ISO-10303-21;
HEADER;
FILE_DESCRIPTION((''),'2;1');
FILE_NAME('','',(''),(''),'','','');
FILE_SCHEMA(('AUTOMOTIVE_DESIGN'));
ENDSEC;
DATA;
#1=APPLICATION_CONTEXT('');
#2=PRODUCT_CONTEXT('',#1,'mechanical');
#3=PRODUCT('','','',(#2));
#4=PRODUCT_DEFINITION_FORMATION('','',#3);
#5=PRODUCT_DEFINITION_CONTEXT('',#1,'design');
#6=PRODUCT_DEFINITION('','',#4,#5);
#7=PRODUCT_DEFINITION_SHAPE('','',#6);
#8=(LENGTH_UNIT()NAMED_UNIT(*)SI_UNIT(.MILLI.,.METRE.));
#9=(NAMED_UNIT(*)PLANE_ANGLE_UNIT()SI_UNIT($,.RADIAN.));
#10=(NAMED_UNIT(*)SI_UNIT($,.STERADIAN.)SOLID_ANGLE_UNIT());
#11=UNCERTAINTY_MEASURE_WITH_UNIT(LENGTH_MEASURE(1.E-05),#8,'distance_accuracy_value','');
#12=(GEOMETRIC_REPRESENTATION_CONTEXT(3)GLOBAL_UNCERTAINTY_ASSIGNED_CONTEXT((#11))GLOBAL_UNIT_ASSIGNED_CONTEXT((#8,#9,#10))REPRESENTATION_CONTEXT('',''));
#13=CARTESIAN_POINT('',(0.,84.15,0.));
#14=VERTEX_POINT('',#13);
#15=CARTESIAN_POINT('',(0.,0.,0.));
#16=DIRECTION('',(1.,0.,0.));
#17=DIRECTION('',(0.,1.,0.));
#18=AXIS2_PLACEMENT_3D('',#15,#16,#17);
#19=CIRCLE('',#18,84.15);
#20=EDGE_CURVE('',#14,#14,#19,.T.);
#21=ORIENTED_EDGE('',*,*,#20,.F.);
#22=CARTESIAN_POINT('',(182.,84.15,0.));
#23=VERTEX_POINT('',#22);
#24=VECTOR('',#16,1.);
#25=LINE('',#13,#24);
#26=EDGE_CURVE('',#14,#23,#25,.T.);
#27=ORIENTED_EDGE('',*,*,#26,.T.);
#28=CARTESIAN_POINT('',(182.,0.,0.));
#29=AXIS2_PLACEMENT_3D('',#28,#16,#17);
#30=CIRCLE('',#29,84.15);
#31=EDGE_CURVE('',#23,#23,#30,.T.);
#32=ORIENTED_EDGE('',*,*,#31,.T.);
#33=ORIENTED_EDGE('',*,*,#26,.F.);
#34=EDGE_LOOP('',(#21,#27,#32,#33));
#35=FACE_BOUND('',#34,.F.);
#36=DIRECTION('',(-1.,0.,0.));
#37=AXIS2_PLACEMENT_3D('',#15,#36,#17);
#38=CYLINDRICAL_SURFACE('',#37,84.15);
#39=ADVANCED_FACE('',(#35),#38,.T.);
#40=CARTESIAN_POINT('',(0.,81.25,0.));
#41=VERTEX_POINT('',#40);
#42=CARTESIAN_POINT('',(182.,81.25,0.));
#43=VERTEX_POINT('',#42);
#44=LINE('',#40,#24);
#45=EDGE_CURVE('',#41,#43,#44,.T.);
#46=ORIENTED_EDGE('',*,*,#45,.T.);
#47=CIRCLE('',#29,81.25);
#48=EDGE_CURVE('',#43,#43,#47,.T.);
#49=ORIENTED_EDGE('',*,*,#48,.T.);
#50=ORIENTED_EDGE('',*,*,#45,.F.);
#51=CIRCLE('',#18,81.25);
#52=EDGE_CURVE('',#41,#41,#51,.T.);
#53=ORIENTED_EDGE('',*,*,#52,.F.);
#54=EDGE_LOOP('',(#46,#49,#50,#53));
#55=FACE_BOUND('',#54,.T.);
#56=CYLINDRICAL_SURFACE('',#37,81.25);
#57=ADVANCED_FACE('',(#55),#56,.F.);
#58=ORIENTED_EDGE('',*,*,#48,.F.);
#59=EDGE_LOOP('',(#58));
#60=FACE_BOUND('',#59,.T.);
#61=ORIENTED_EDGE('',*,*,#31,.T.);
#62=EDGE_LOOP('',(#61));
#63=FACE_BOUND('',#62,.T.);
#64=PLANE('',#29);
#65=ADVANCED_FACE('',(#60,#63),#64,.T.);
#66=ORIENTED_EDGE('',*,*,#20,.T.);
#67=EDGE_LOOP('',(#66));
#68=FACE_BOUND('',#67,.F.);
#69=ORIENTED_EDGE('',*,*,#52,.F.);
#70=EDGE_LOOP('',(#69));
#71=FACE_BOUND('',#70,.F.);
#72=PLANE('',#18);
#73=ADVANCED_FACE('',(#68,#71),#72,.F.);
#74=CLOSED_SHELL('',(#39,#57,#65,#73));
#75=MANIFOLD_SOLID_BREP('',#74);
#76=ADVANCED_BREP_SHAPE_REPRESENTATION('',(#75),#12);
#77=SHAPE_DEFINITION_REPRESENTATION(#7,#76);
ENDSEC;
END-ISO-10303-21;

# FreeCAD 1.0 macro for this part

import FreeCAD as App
import Part
import Sketcher
from FreeCAD import Vector

doc = App.newDocument("Part")
body = doc.addObject("PartDesign::Body", "Body")

# Sketch on YZ plane
sketch1 = doc.addObject("Sketcher::SketchObject", "Sketch")
body.addObject(sketch1)
sketch1.AttachmentSupport = (doc.YZ_Plane, [""])
sketch1.MapMode = "FlatFace"
sketch1.addGeometry([
    Part.Circle(Vector(0, 0, 0), Vector(0, 0, 1), 84),
    Part.Circle(Vector(0, 0, 0), Vector(0, 0, 1), 81),
], False)
sketch1.addConstraint([
    Sketcher.Constraint("Coincident", 0, 3, -1, 1),
    Sketcher.Constraint("Coincident", 1, 3, -1, 1),
    Sketcher.Constraint("Diameter", 0, 168.3),
    Sketcher.Constraint("Diameter", 1, 162.5),
])
pad1 = doc.addObject("PartDesign::Pad", "Pad")
body.addObject(pad1)
pad1.Profile = sketch1
pad1.Length = 182

doc.recompute()
